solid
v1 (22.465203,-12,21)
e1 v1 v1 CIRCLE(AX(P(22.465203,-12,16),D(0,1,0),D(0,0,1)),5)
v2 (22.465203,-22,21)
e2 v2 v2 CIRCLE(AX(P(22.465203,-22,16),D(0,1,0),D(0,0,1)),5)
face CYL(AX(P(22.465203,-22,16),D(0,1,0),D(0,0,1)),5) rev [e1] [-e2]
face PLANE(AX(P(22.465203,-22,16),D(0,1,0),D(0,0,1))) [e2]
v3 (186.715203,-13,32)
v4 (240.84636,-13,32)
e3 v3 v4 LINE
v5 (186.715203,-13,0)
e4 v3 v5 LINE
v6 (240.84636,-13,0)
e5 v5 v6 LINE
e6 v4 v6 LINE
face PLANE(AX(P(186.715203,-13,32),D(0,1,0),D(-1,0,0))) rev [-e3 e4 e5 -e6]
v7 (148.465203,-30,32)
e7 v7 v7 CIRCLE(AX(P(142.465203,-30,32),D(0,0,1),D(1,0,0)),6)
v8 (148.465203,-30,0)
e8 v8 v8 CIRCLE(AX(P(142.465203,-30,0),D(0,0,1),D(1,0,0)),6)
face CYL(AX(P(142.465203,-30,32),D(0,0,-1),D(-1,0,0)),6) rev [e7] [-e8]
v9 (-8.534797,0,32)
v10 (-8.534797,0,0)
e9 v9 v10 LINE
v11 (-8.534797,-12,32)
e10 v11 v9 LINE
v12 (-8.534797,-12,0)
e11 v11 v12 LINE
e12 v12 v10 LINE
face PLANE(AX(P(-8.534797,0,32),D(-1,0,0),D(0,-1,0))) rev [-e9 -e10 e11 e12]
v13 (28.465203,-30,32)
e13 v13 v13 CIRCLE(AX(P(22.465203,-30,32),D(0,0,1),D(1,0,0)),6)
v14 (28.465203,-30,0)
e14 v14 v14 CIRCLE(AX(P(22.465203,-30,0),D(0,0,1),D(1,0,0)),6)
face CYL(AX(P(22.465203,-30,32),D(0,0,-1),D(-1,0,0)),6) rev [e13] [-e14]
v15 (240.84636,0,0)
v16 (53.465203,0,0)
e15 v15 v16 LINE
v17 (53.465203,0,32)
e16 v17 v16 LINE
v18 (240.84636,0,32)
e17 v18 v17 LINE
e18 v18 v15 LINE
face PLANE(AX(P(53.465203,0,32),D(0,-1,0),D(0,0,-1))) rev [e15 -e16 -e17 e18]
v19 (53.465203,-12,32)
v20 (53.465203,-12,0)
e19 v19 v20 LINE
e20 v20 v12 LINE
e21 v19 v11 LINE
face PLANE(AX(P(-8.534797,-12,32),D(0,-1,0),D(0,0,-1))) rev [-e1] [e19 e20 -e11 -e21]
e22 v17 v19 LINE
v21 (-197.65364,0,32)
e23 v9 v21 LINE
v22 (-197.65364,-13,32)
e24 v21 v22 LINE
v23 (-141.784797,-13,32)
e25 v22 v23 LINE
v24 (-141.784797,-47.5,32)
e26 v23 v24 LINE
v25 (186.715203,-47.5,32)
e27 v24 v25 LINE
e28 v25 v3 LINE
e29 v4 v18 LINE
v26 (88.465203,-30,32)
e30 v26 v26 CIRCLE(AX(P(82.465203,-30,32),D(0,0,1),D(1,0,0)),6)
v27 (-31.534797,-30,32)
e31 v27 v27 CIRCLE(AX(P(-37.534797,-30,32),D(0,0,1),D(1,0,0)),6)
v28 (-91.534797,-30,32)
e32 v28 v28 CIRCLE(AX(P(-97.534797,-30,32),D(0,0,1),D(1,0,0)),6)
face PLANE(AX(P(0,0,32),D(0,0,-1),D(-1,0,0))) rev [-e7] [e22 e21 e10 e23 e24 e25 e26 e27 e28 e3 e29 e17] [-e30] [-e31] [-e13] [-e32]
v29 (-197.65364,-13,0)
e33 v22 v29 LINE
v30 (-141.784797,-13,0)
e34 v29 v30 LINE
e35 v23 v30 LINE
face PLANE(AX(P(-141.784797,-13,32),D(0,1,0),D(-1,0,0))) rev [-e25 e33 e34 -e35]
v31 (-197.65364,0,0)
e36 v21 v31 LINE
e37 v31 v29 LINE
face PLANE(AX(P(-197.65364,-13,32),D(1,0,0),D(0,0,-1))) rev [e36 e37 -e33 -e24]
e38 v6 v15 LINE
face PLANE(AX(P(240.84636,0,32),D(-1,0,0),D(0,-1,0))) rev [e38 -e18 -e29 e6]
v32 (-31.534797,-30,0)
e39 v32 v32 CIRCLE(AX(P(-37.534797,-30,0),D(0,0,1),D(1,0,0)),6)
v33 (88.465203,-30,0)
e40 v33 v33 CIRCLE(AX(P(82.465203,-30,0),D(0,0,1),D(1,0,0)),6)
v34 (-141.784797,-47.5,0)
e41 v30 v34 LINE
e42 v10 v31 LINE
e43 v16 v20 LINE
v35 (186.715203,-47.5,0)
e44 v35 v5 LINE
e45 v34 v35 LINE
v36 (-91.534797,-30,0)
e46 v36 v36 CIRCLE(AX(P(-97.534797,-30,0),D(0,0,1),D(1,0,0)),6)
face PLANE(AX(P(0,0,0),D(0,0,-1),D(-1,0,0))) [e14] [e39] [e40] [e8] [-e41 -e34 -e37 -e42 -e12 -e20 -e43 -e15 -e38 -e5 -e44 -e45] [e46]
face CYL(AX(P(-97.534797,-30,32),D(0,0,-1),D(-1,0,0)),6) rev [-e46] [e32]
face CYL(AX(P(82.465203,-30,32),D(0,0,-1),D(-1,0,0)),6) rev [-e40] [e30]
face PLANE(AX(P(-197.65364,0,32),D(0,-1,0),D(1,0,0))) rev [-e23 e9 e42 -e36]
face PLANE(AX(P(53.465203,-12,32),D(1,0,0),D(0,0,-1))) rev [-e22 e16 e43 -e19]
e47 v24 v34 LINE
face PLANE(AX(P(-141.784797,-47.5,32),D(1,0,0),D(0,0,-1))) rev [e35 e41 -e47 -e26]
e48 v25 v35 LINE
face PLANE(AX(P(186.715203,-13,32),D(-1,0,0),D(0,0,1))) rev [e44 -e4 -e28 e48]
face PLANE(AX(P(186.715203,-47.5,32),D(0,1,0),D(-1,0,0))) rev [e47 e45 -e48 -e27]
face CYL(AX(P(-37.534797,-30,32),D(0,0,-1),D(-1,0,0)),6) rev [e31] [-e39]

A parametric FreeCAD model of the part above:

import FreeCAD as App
import Part
import Sketcher

doc = App.newDocument("Part")
params = doc.addObject("Spreadsheet::Sheet", "Params")
for row, (alias, value) in enumerate([
    ("sketch1_diameter", "12 mm"),
    ("sketch1_width", "62 mm"),
    ("sketch1_height", "13 mm"),
    ("sketch1_height2", "12 mm"),
    ("sketch1_width2", "328.5 mm"),
    ("pad1_length", "32 mm"),
    ("sketch2_diameter", "10 mm"),
    ("pocket1_length", "10 mm"),
], start=1):
    params.set(f"A{row}", alias)
    params.set(f"B{row}", "=" + value)
    params.setAlias(f"B{row}", alias)

body = doc.addObject("PartDesign::Body", "Body")

# Sketch on XY plane
sketch1 = body.newObject("Sketcher::SketchObject", "Sketch")
sketch1.AttachmentSupport = (doc.getObject("XY_Plane"), [""])
sketch1.MapMode = "FlatFace"
sketch1.addGeometry([
    Part.LineSegment(App.Vector(-9, 0, 0), App.Vector(-198, 0, 0)),  # 0
    Part.LineSegment(App.Vector(-198, 0, 0), App.Vector(-198, -13, 0)),  # 1
    Part.LineSegment(App.Vector(-198, -13, 0), App.Vector(-142, -13, 0)),  # 2
    Part.LineSegment(App.Vector(-142, -13, 0), App.Vector(-142, -48, 0)),  # 3
    Part.LineSegment(App.Vector(-142, -48, 0), App.Vector(187, -48, 0)),  # 4
    Part.LineSegment(App.Vector(187, -48, 0), App.Vector(187, -13, 0)),  # 5
    Part.LineSegment(App.Vector(187, -13, 0), App.Vector(241, -13, 0)),  # 6
    Part.LineSegment(App.Vector(241, -13, 0), App.Vector(241, 0, 0)),  # 7
    Part.LineSegment(App.Vector(241, 0, 0), App.Vector(53, 0, 0)),  # 8
    Part.LineSegment(App.Vector(53, 0, 0), App.Vector(53, -12, 0)),  # 9
    Part.LineSegment(App.Vector(53, -12, 0), App.Vector(-9, -12, 0)),  # 10
    Part.LineSegment(App.Vector(-9, -12, 0), App.Vector(-9, 0, 0)),  # 11
    Part.Circle(App.Vector(142, -30, 0), App.Vector(0, 0, 1), 6),  # 12
    Part.Circle(App.Vector(82, -30, 0), App.Vector(0, 0, 1), 6),  # 13
    Part.Circle(App.Vector(22, -30, 0), App.Vector(0, 0, 1), 6),  # 14
    Part.Circle(App.Vector(-38, -30, 0), App.Vector(0, 0, 1), 6),  # 15
    Part.Circle(App.Vector(-98, -30, 0), App.Vector(0, 0, 1), 6),  # 16
], False)
sketch1.addConstraint([
    Sketcher.Constraint("Coincident", 0, 2, 1, 1),
    Sketcher.Constraint("Coincident", 1, 2, 2, 1),
    Sketcher.Constraint("Coincident", 2, 2, 3, 1),
    Sketcher.Constraint("Coincident", 3, 2, 4, 1),
    Sketcher.Constraint("Coincident", 4, 2, 5, 1),
    Sketcher.Constraint("Coincident", 5, 2, 6, 1),
    Sketcher.Constraint("Coincident", 6, 2, 7, 1),
    Sketcher.Constraint("Coincident", 7, 2, 8, 1),
    Sketcher.Constraint("Coincident", 8, 2, 9, 1),
    Sketcher.Constraint("Coincident", 9, 2, 10, 1),
    Sketcher.Constraint("Coincident", 10, 2, 11, 1),
    Sketcher.Constraint("Coincident", 11, 2, 0, 1),
    Sketcher.Constraint("Horizontal", 0),
    Sketcher.Constraint("Vertical", 1),
    Sketcher.Constraint("Horizontal", 2),
    Sketcher.Constraint("Vertical", 3),
    Sketcher.Constraint("Horizontal", 4),
    Sketcher.Constraint("Vertical", 5),
    Sketcher.Constraint("Horizontal", 6),
    Sketcher.Constraint("Vertical", 7),
    Sketcher.Constraint("Horizontal", 8),
    Sketcher.Constraint("Vertical", 9),
    Sketcher.Constraint("Horizontal", 10),
    Sketcher.Constraint("Vertical", 11),
    Sketcher.Constraint("Equal", 12, 13),
    Sketcher.Constraint("Equal", 13, 14),
    Sketcher.Constraint("Equal", 14, 15),
    Sketcher.Constraint("Equal", 15, 16),
    Sketcher.Constraint("PointOnObject", 0, 2, -1),
    Sketcher.Constraint("PointOnObject", 7, 2, -1),
    Sketcher.Constraint("Horizontal", 12, 3, 13, 3),
    Sketcher.Constraint("Horizontal", 13, 3, 14, 3),
    Sketcher.Constraint("Horizontal", 14, 3, 15, 3),
    Sketcher.Constraint("Horizontal", 15, 3, 16, 3),
    Sketcher.Constraint("Horizontal", 2, 2, 5, 2),
    Sketcher.Constraint("Diameter", 12, 12.0),
    Sketcher.Constraint("DistanceX", 10, 2, 10, 1, 62.0),
    Sketcher.Constraint("DistanceY", 1, 2, 1, 1, 13.0),
    Sketcher.Constraint("DistanceY", 9, 2, 9, 1, 12.0),
    Sketcher.Constraint("DistanceX", 4, 1, 4, 2, 328.5),
    Sketcher.Constraint("DistanceY", 3, 2, 3, 1, 34.5),
    Sketcher.Constraint("DistanceY", 12, 3, -1, 1, 30.0),
    Sketcher.Constraint("DistanceX", 13, 3, 12, 3, 60.0),
    Sketcher.Constraint("DistanceX", 14, 3, 13, 3, 60.0),
    Sketcher.Constraint("DistanceX", 15, 3, 14, 3, 60.0),
    Sketcher.Constraint("DistanceX", 16, 3, 15, 3, 60.0),
    Sketcher.Constraint("DistanceX", 8, 2, 13, 3, 29.0),
    Sketcher.Constraint("DistanceX", 2, 2, 16, 3, 44.25),
    Sketcher.Constraint("DistanceX", 0, 2, 0, 1, 189.118844),
    Sketcher.Constraint("DistanceX", 6, 1, 6, 2, 54.131156),
    Sketcher.Constraint("DistanceX", 0, 2, -1, 1, 197.65364),
])
sketch1.setExpression("Constraints[35]", "Params.sketch1_diameter")
sketch1.setExpression("Constraints[36]", "Params.sketch1_width")
sketch1.setExpression("Constraints[37]", "Params.sketch1_height")
sketch1.setExpression("Constraints[38]", "Params.sketch1_height2")
sketch1.setExpression("Constraints[39]", "Params.sketch1_width2")
pad1 = body.newObject("PartDesign::Pad", "Pad")
pad1.Profile = sketch1
pad1.setExpression("Length", "Params.pad1_length")

# Sketch on XZ plane
sketch2 = body.newObject("Sketcher::SketchObject", "Sketch001")
sketch2.AttachmentSupport = (doc.getObject("XZ_Plane"), [""])
sketch2.MapMode = "FlatFace"
sketch2.AttachmentOffset = App.Placement(App.Vector(0, 0, 12), App.Rotation())
sketch2.addGeometry(Part.Circle(App.Vector(22, 16, 0), App.Vector(0, 0, 1), 5), False)
sketch2.addConstraint([
    Sketcher.Constraint("Diameter", 0, 10.0),
    Sketcher.Constraint("DistanceY", -1, 1, 0, 3, 16.0),
    Sketcher.Constraint("DistanceX", -1, 1, 0, 3, 22.465203),
])
sketch2.setExpression("Constraints[0]", "Params.sketch2_diameter")
pocket1 = body.newObject("PartDesign::Pocket", "Pocket")
pocket1.Profile = sketch2
pocket1.setExpression("Length", "Params.pocket1_length")
pocket1.Reversed = True

doc.recompute()
